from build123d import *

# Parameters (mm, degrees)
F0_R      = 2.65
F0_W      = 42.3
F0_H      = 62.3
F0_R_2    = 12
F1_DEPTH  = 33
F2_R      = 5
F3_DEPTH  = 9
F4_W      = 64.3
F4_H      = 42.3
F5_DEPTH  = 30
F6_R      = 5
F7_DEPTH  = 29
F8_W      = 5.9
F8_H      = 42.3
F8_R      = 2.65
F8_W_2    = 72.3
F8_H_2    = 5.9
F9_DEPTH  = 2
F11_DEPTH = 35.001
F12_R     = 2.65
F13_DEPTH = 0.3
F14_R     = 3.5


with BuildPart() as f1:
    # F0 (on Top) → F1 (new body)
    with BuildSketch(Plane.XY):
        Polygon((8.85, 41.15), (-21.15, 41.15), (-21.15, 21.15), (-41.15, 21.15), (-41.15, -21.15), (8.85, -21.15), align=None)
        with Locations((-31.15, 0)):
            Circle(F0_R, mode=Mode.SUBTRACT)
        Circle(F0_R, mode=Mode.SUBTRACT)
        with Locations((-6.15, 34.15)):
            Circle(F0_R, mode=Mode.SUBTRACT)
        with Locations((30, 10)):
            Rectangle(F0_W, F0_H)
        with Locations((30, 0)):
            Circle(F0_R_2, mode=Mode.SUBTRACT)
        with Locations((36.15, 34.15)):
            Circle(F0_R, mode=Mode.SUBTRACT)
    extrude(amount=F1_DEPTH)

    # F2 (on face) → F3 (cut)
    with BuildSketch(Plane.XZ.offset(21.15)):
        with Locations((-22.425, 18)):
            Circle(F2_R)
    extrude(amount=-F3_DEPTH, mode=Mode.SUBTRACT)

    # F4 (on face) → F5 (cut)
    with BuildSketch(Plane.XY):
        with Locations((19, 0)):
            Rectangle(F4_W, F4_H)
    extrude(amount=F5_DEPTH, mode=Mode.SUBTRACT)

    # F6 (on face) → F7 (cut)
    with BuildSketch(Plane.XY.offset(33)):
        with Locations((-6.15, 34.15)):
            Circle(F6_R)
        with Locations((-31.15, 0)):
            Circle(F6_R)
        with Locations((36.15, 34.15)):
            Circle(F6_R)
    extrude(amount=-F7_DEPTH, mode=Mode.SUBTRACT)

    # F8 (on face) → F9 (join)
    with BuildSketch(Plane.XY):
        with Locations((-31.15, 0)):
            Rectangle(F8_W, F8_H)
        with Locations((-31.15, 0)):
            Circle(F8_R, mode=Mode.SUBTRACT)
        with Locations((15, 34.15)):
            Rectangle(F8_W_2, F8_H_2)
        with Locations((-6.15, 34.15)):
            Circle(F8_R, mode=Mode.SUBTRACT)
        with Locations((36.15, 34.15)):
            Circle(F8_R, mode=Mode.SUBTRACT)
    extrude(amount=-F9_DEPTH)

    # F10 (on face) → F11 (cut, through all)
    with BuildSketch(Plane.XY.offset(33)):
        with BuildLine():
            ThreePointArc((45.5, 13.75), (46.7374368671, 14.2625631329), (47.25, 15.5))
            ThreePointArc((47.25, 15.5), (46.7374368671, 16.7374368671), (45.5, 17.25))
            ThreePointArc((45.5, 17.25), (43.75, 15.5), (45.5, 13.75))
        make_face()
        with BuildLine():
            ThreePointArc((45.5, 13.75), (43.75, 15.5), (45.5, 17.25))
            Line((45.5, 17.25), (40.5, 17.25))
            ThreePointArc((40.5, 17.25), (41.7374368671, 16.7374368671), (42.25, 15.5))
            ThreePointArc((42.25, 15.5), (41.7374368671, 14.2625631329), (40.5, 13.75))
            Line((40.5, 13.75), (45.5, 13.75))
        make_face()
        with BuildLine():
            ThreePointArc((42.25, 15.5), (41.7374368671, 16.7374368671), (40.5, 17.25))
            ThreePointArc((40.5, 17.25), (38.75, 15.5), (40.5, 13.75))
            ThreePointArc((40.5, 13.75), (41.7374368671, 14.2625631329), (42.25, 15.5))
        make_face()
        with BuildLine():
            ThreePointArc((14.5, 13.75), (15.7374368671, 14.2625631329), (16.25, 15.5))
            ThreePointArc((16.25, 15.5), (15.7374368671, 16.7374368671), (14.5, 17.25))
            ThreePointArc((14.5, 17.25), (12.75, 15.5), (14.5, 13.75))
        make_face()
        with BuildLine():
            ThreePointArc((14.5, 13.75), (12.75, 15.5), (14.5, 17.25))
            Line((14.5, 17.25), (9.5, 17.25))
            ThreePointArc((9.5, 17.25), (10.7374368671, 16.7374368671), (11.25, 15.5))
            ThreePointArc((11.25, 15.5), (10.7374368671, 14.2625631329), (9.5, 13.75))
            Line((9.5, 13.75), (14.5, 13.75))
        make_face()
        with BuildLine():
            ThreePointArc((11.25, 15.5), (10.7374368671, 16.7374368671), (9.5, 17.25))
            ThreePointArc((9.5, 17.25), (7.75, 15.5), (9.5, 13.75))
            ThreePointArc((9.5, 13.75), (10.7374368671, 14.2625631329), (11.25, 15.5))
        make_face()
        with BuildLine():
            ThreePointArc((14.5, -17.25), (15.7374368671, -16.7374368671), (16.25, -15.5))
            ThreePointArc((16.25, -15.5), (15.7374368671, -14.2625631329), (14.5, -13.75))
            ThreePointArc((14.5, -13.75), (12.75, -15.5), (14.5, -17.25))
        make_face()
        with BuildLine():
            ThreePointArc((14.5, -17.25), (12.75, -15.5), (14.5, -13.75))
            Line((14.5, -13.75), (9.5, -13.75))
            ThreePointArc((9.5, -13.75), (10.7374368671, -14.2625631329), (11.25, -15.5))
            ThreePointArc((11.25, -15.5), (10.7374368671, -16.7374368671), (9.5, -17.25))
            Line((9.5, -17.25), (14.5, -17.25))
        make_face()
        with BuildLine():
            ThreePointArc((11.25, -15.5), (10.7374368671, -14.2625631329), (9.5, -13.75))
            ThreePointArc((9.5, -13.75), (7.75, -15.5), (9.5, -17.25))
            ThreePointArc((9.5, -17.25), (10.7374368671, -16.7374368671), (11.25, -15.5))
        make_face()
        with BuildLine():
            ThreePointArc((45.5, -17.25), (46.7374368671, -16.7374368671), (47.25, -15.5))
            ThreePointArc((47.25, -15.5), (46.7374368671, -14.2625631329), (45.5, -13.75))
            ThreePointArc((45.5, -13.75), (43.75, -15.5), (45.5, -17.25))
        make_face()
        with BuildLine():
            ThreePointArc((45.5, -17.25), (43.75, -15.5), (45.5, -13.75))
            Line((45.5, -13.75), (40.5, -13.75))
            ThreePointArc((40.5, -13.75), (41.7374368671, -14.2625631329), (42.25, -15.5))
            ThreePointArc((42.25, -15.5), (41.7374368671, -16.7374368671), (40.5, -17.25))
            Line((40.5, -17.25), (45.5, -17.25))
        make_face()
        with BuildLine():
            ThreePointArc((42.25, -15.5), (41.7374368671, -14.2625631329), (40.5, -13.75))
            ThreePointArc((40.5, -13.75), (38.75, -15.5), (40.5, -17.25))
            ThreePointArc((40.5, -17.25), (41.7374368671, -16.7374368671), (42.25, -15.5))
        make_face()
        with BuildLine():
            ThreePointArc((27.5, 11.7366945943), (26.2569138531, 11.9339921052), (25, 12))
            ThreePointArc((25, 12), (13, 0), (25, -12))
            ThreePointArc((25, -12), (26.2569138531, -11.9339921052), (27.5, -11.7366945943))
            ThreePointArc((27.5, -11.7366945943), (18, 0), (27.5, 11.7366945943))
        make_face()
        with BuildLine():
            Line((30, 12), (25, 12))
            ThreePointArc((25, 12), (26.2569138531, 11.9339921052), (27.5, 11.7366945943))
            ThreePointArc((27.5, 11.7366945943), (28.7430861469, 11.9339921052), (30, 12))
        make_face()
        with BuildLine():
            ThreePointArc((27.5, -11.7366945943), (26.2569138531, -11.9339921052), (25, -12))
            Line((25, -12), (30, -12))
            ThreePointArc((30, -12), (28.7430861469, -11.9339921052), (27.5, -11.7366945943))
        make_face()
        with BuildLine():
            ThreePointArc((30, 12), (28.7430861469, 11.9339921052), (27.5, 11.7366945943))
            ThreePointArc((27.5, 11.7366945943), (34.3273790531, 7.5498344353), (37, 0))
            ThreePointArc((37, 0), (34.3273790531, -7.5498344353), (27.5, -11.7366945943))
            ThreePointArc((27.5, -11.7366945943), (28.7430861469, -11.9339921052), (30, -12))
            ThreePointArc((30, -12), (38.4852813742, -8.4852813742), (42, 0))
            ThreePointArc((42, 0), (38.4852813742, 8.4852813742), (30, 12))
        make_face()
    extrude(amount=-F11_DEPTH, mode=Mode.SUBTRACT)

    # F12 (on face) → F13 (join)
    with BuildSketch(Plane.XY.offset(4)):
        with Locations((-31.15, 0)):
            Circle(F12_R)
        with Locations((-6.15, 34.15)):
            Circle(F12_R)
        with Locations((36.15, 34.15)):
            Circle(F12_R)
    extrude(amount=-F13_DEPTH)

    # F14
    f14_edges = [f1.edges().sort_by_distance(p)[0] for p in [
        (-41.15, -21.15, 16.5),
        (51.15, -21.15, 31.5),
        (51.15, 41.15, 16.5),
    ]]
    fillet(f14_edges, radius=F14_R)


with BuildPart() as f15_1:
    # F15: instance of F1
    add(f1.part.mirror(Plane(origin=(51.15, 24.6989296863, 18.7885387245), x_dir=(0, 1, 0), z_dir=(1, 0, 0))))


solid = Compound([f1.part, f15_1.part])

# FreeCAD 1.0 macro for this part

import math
import FreeCAD as App
import Part
import Sketcher
Q = App.Units.Quantity


def edges_at(feature, points):
    """Names of the edges that pass closest to the given points."""
    edges = feature.Shape.Edges
    near = lambda p: min(range(len(edges)), key=lambda i: edges[i].distToShape(Part.Vertex(*p))[0])
    return sorted({f"Edge{near(p) + 1}" for p in points})


def add_polygon(sketch, points):
    """Adds a closed chain of lines whose ends are joined by coincident constraints."""
    first, n = sketch.GeometryCount, len(points)
    for a, b in zip(points, points[1:] + points[:1]):
        sketch.addGeometry(Part.LineSegment(App.Vector(*a, 0), App.Vector(*b, 0)), False)
    for i in range(n):
        sketch.addConstraint(Sketcher.Constraint("Coincident", first + i, 2, first + (i + 1) % n, 1))

doc = App.newDocument("Part")
params = doc.addObject("Spreadsheet::Sheet", "Params")
for row, (alias, value) in enumerate([
    ("sketch1_diameter", "24 mm"),
    ("sketch1_diameter2", "5.3 mm"),
    ("sketch1_width", "20 mm"),
    ("sketch1_width2", "92.3 mm"),
    ("sketch1_height", "42.3 mm"),
    ("pad1_length", "33 mm"),
    ("sketch2_diameter", "10 mm"),
    ("pocket1_length", "9 mm"),
    ("sketch3_width", "64.3 mm"),
    ("sketch3_height", "42.3 mm"),
    ("pocket2_length", "30 mm"),
    ("sketch4_diameter", "10 mm"),
    ("pocket3_length", "29 mm"),
    ("sketch5_diameter", "5.3 mm"),
    ("sketch5_width", "5.9 mm"),
    ("sketch5_width2", "72.3 mm"),
    ("sketch5_height", "42.3 mm"),
    ("pad2_length", "2 mm"),
    ("sketch6_radius", "12 mm"),
    ("sketch6_width", "5 mm"),
    ("sketch6_radius2", "1.75 mm"),
    ("sketch7_diameter", "5.3 mm"),
    ("pad3_length", "0.3 mm"),
    ("fillet_radius", "3.5 mm"),
], start=1):
    params.set(f"A{row}", alias)
    params.set(f"B{row}", "=" + value)
    params.setAlias(f"B{row}", alias)

body = doc.addObject("PartDesign::Body", "Body")

# Sketch on XY plane
sketch1 = doc.addObject("Sketcher::SketchObject", "Sketch")
body.addObject(sketch1)
sketch1.AttachmentSupport = (doc.XY_Plane, [""])
sketch1.MapMode = "FlatFace"
add_polygon(sketch1, [(-21.1, 41.1), (-21.1, 21.1), (-41.1, 21.1), (-41.1, -21.1), (51.1, -21.1), (51.1, 41.1)])  # lines 0-5
sketch1.addGeometry(Part.Circle(App.Vector(-31.1, 0, 0), App.Vector(0, 0, 1), 2.6), False)  # 6
sketch1.addGeometry(Part.Circle(App.Vector(0, 0, 0), App.Vector(0, 0, 1), 2.6), False)  # 7
sketch1.addGeometry(Part.Circle(App.Vector(30, 0, 0), App.Vector(0, 0, 1), 12), False)  # 8
sketch1.addGeometry(Part.Circle(App.Vector(-6.2, 34.1, 0), App.Vector(0, 0, 1), 2.6), False)  # 9
sketch1.addGeometry(Part.Circle(App.Vector(36.1, 34.1, 0), App.Vector(0, 0, 1), 2.6), False)  # 10
sketch1.addConstraint([
    Sketcher.Constraint("Vertical", 0),
    Sketcher.Constraint("Horizontal", 1),
    Sketcher.Constraint("Vertical", 2),
    Sketcher.Constraint("Horizontal", 3),
    Sketcher.Constraint("Vertical", 4),
    Sketcher.Constraint("Horizontal", 5),
    Sketcher.Constraint("Coincident", 7, 3, -1, 1),
    Sketcher.Constraint("Equal", 6, 7),
    Sketcher.Constraint("Equal", 7, 9),
    Sketcher.Constraint("Equal", 9, 10),
    Sketcher.Constraint("PointOnObject", 6, 3, -1),
    Sketcher.Constraint("PointOnObject", 8, 3, -1),
    Sketcher.Constraint("Horizontal", 9, 3, 10, 3),
    Sketcher.Constraint("Equal", 1, 0),
    Sketcher.Constraint("Diameter", 8, Q("24 mm")),
    Sketcher.Constraint("Diameter", 6, Q("5.3 mm")),
    Sketcher.Constraint("DistanceX", 1, 2, 1, 1, Q("20 mm")),
    Sketcher.Constraint("DistanceX", 3, 1, 3, 2, Q("92.3 mm")),
    Sketcher.Constraint("DistanceY", 2, 2, 2, 1, Q("42.3 mm")),
    Sketcher.Constraint("DistanceX", -1, 1, 8, 3, Q("30 mm")),
    Sketcher.Constraint("DistanceX", 6, 3, 9, 3, Q("25 mm")),
    Sketcher.Constraint("DistanceX", 0, 2, 9, 3, Q("15 mm")),
    Sketcher.Constraint("DistanceY", 0, 2, 9, 3, Q("13 mm")),
    Sketcher.Constraint("DistanceX", 10, 3, 3, 2, Q("15 mm")),
    Sketcher.Constraint("DistanceX", 6, 3, -1, 1, Q("31.15 mm")),
    Sketcher.Constraint("DistanceY", -1, 1, 9, 3, Q("34.15 mm")),
])
sketch1.setExpression("Constraints[20]", "Params.sketch1_diameter")
sketch1.setExpression("Constraints[21]", "Params.sketch1_diameter2")
sketch1.setExpression("Constraints[22]", "Params.sketch1_width")
sketch1.setExpression("Constraints[23]", "Params.sketch1_width2")
sketch1.setExpression("Constraints[24]", "Params.sketch1_height")
pad1 = doc.addObject("PartDesign::Pad", "Pad")
body.addObject(pad1)
pad1.Profile = sketch1
pad1.setExpression("Length", "Params.pad1_length")

# Sketch on XZ plane
sketch2 = doc.addObject("Sketcher::SketchObject", "Sketch001")
body.addObject(sketch2)
sketch2.AttachmentSupport = (doc.XZ_Plane, [""])
sketch2.MapMode = "FlatFace"
sketch2.AttachmentOffset = App.Placement(App.Vector(0, 0, 21.15), App.Rotation())
sketch2.addGeometry(Part.Circle(App.Vector(-22, 18, 0), App.Vector(0, 0, 1), 5), False)
sketch2.addConstraint([
    Sketcher.Constraint("Diameter", 0, Q("10 mm")),
    Sketcher.Constraint("DistanceY", -1, 1, 0, 3, Q("18 mm")),
    Sketcher.Constraint("DistanceX", 0, 3, -1, 1, Q("22.425 mm")),
])
sketch2.setExpression("Constraints[0]", "Params.sketch2_diameter")
pocket1 = doc.addObject("PartDesign::Pocket", "Pocket")
body.addObject(pocket1)
pocket1.Profile = sketch2
pocket1.setExpression("Length", "Params.pocket1_length")

# Sketch on XY plane
sketch3 = doc.addObject("Sketcher::SketchObject", "Sketch002")
body.addObject(sketch3)
sketch3.AttachmentSupport = (doc.XY_Plane, [""])
sketch3.MapMode = "FlatFace"
add_polygon(sketch3, [(-13, 21), (-13, -21), (51, -21), (51, 21)])  # lines 0-3
sketch3.addConstraint([
    Sketcher.Constraint("Vertical", 0),
    Sketcher.Constraint("Horizontal", 1),
    Sketcher.Constraint("Vertical", 2),
    Sketcher.Constraint("Horizontal", 3),
    Sketcher.Constraint("DistanceX", 1, 1, 1, 2, Q("64.3 mm")),
    Sketcher.Constraint("DistanceY", 0, 2, 0, 1, Q("42.3 mm")),
    Sketcher.Constraint("DistanceX", 0, 2, -1, 1, Q("13.15 mm")),
    Sketcher.Constraint("DistanceY", 0, 2, -1, 1, Q("21.15 mm")),
])
sketch3.setExpression("Constraints[8]", "Params.sketch3_width")
sketch3.setExpression("Constraints[9]", "Params.sketch3_height")
pocket2 = doc.addObject("PartDesign::Pocket", "Pocket001")
body.addObject(pocket2)
pocket2.Profile = sketch3
pocket2.setExpression("Length", "Params.pocket2_length")
pocket2.Reversed = True

# Sketch on XY plane
sketch4 = doc.addObject("Sketcher::SketchObject", "Sketch003")
body.addObject(sketch4)
sketch4.AttachmentSupport = (doc.XY_Plane, [""])
sketch4.MapMode = "FlatFace"
sketch4.AttachmentOffset = App.Placement(App.Vector(0, 0, 33), App.Rotation())
sketch4.addGeometry([
    Part.Circle(App.Vector(-6, 34, 0), App.Vector(0, 0, 1), 5),
    Part.Circle(App.Vector(-31, 0, 0), App.Vector(0, 0, 1), 5),
    Part.Circle(App.Vector(36, 34, 0), App.Vector(0, 0, 1), 5),
], False)
sketch4.addConstraint([
    Sketcher.Constraint("Equal", 0, 1),
    Sketcher.Constraint("Equal", 1, 2),
    Sketcher.Constraint("PointOnObject", 1, 3, -1),
    Sketcher.Constraint("Horizontal", 0, 3, 2, 3),
    Sketcher.Constraint("Diameter", 0, Q("10 mm")),
    Sketcher.Constraint("DistanceX", 1, 3, 0, 3, Q("25 mm")),
    Sketcher.Constraint("DistanceX", 0, 3, 2, 3, Q("42.3 mm")),
    Sketcher.Constraint("DistanceX", 0, 3, -1, 1, Q("6.15 mm")),
    Sketcher.Constraint("DistanceY", -1, 1, 0, 3, Q("34.15 mm")),
])
sketch4.setExpression("Constraints[4]", "Params.sketch4_diameter")
pocket3 = doc.addObject("PartDesign::Pocket", "Pocket002")
body.addObject(pocket3)
pocket3.Profile = sketch4
pocket3.setExpression("Length", "Params.pocket3_length")

# Sketch on XY plane
sketch5 = doc.addObject("Sketcher::SketchObject", "Sketch004")
body.addObject(sketch5)
sketch5.AttachmentSupport = (doc.XY_Plane, [""])
sketch5.MapMode = "FlatFace"
add_polygon(sketch5, [(-34.1, 21.1), (-34.1, -21.1), (-28.2, -21.1), (-28.2, 21.1)])  # lines 0-3
sketch5.addGeometry(Part.Circle(App.Vector(-31.1, 0, 0), App.Vector(0, 0, 1), 2.6), False)  # 4
add_polygon(sketch5, [(-21.1, 37.1), (-21.1, 31.2), (51.1, 31.2), (51.1, 37.1)])  # lines 5-8
sketch5.addGeometry(Part.Circle(App.Vector(-6.2, 34.1, 0), App.Vector(0, 0, 1), 2.6), False)  # 9
sketch5.addGeometry(Part.Circle(App.Vector(36.1, 34.1, 0), App.Vector(0, 0, 1), 2.6), False)  # 10
sketch5.addConstraint([
    Sketcher.Constraint("Vertical", 0),
    Sketcher.Constraint("Horizontal", 1),
    Sketcher.Constraint("Vertical", 2),
    Sketcher.Constraint("Horizontal", 3),
    Sketcher.Constraint("Vertical", 5),
    Sketcher.Constraint("Horizontal", 6),
    Sketcher.Constraint("Vertical", 7),
    Sketcher.Constraint("Horizontal", 8),
    Sketcher.Constraint("Equal", 4, 9),
    Sketcher.Constraint("Equal", 9, 10),
    Sketcher.Constraint("PointOnObject", 4, 3, -1),
    Sketcher.Constraint("Horizontal", 9, 3, 10, 3),
    Sketcher.Constraint("Equal", 3, 5),
    Sketcher.Constraint("Diameter", 4, Q("5.3 mm")),
    Sketcher.Constraint("DistanceX", 1, 1, 1, 2, Q("5.9 mm")),
    Sketcher.Constraint("DistanceX", 6, 1, 6, 2, Q("72.3 mm")),
    Sketcher.Constraint("DistanceY", 0, 2, 0, 1, Q("42.3 mm")),
    Sketcher.Constraint("DistanceX", 4, 3, 9, 3, Q("25 mm")),
    Sketcher.Constraint("DistanceY", 2, 2, 9, 3, Q("13 mm")),
    Sketcher.Constraint("DistanceX", 5, 2, 9, 3, Q("15 mm")),
    Sketcher.Constraint("DistanceX", 10, 3, 6, 2, Q("15 mm")),
    Sketcher.Constraint("DistanceX", 0, 2, -1, 1, Q("34.1 mm")),
    Sketcher.Constraint("DistanceY", -1, 1, 5, 2, Q("31.2 mm")),
    Sketcher.Constraint("DistanceX", 4, 3, -1, 1, Q("31.15 mm")),
    Sketcher.Constraint("DistanceY", -1, 1, 9, 3, Q("34.15 mm")),
])
sketch5.setExpression("Constraints[21]", "Params.sketch5_diameter")
sketch5.setExpression("Constraints[22]", "Params.sketch5_width")
sketch5.setExpression("Constraints[23]", "Params.sketch5_width2")
sketch5.setExpression("Constraints[24]", "Params.sketch5_height")
pad2 = doc.addObject("PartDesign::Pad", "Pad001")
body.addObject(pad2)
pad2.Profile = sketch5
pad2.setExpression("Length", "Params.pad2_length")
pad2.Reversed = True

# Sketch on XY plane
sketch6 = doc.addObject("Sketcher::SketchObject", "Sketch005")
body.addObject(sketch6)
sketch6.AttachmentSupport = (doc.XY_Plane, [""])
sketch6.MapMode = "FlatFace"
sketch6.AttachmentOffset = App.Placement(App.Vector(0, 0, 33), App.Rotation())
sketch6.addGeometry([
    Part.ArcOfCircle(Part.Circle(App.Vector(45.5, 15.5, 0), App.Vector(0, 0, 1), 1.8), math.radians(-90), math.radians(0)),  # 0
    Part.ArcOfCircle(Part.Circle(App.Vector(45.5, 15.5, 0), App.Vector(0, 0, 1), 1.8), math.radians(0), math.radians(90)),  # 1
    Part.LineSegment(App.Vector(45.5, 17.2, 0), App.Vector(40.5, 17.2, 0)),  # 2
    Part.ArcOfCircle(Part.Circle(App.Vector(40.5, 15.5, 0), App.Vector(0, 0, 1), 1.8), math.radians(90), math.radians(270)),  # 3
    Part.LineSegment(App.Vector(40.5, 13.8, 0), App.Vector(45.5, 13.8, 0)),  # 4
    Part.ArcOfCircle(Part.Circle(App.Vector(14.5, 15.5, 0), App.Vector(0, 0, 1), 1.8), math.radians(-90), math.radians(0)),  # 5
    Part.ArcOfCircle(Part.Circle(App.Vector(14.5, 15.5, 0), App.Vector(0, 0, 1), 1.8), math.radians(0), math.radians(90)),  # 6
    Part.LineSegment(App.Vector(14.5, 17.2, 0), App.Vector(9.5, 17.2, 0)),  # 7
    Part.ArcOfCircle(Part.Circle(App.Vector(9.5, 15.5, 0), App.Vector(0, 0, 1), 1.8), math.radians(90), math.radians(270)),  # 8
    Part.LineSegment(App.Vector(9.5, 13.8, 0), App.Vector(14.5, 13.8, 0)),  # 9
    Part.ArcOfCircle(Part.Circle(App.Vector(14.5, -15.5, 0), App.Vector(0, 0, 1), 1.8), math.radians(-90), math.radians(0)),  # 10
    Part.ArcOfCircle(Part.Circle(App.Vector(14.5, -15.5, 0), App.Vector(0, 0, 1), 1.8), math.radians(0), math.radians(90)),  # 11
    Part.LineSegment(App.Vector(14.5, -13.8, 0), App.Vector(9.5, -13.8, 0)),  # 12
    Part.ArcOfCircle(Part.Circle(App.Vector(9.5, -15.5, 0), App.Vector(0, 0, 1), 1.8), math.radians(90), math.radians(270)),  # 13
    Part.LineSegment(App.Vector(9.5, -17.2, 0), App.Vector(14.5, -17.2, 0)),  # 14
    Part.ArcOfCircle(Part.Circle(App.Vector(45.5, -15.5, 0), App.Vector(0, 0, 1), 1.8), math.radians(-90), math.radians(0)),  # 15
    Part.ArcOfCircle(Part.Circle(App.Vector(45.5, -15.5, 0), App.Vector(0, 0, 1), 1.8), math.radians(0), math.radians(90)),  # 16
    Part.LineSegment(App.Vector(45.5, -13.8, 0), App.Vector(40.5, -13.8, 0)),  # 17
    Part.ArcOfCircle(Part.Circle(App.Vector(40.5, -15.5, 0), App.Vector(0, 0, 1), 1.8), math.radians(90), math.radians(270)),  # 18
    Part.LineSegment(App.Vector(40.5, -17.2, 0), App.Vector(45.5, -17.2, 0)),  # 19
    Part.ArcOfCircle(Part.Circle(App.Vector(25, 0, 0), App.Vector(0, 0, 1), 12), math.radians(90), math.radians(270)),  # 20
    Part.LineSegment(App.Vector(25, -12, 0), App.Vector(30, -12, 0)),  # 21
    Part.ArcOfCircle(Part.Circle(App.Vector(30, 0, 0), App.Vector(0, 0, 1), 12), math.radians(-90), math.radians(0)),  # 22
    Part.ArcOfCircle(Part.Circle(App.Vector(30, 0, 0), App.Vector(0, 0, 1), 12), math.radians(0), math.radians(90)),  # 23
    Part.LineSegment(App.Vector(30, 12, 0), App.Vector(25, 12, 0)),  # 24
    Part.ArcOfCircle(Part.Circle(App.Vector(30, 0, 0), App.Vector(0, 0, 1), 12), math.radians(102), math.radians(258)),  # 25
    Part.ArcOfCircle(Part.Circle(App.Vector(25, 0, 0), App.Vector(0, 0, 1), 12), math.radians(0), math.radians(78)),  # 26
    Part.ArcOfCircle(Part.Circle(App.Vector(25, 0, 0), App.Vector(0, 0, 1), 12), math.radians(-78), math.radians(0)),  # 27
], False)
sketch6.addConstraint([
    Sketcher.Constraint("Tangent", 0, 2, 1, 1),
    Sketcher.Constraint("Tangent", 1, 2, 2, 1),
    Sketcher.Constraint("Tangent", 2, 2, 3, 1),
    Sketcher.Constraint("Tangent", 3, 2, 4, 1),
    Sketcher.Constraint("Tangent", 4, 2, 0, 1),
    Sketcher.Constraint("Tangent", 5, 2, 6, 1),
    Sketcher.Constraint("Tangent", 6, 2, 7, 1),
    Sketcher.Constraint("Tangent", 7, 2, 8, 1),
    Sketcher.Constraint("Tangent", 8, 2, 9, 1),
    Sketcher.Constraint("Tangent", 9, 2, 5, 1),
    Sketcher.Constraint("Tangent", 10, 2, 11, 1),
    Sketcher.Constraint("Tangent", 11, 2, 12, 1),
    Sketcher.Constraint("Tangent", 12, 2, 13, 1),
    Sketcher.Constraint("Tangent", 13, 2, 14, 1),
    Sketcher.Constraint("Tangent", 14, 2, 10, 1),
    Sketcher.Constraint("Tangent", 15, 2, 16, 1),
    Sketcher.Constraint("Tangent", 16, 2, 17, 1),
    Sketcher.Constraint("Tangent", 17, 2, 18, 1),
    Sketcher.Constraint("Tangent", 18, 2, 19, 1),
    Sketcher.Constraint("Tangent", 19, 2, 15, 1),
    Sketcher.Constraint("Tangent", 20, 2, 21, 1),
    Sketcher.Constraint("Tangent", 21, 2, 22, 1),
    Sketcher.Constraint("Tangent", 22, 2, 23, 1),
    Sketcher.Constraint("Tangent", 23, 2, 24, 1),
    Sketcher.Constraint("Tangent", 24, 2, 20, 1),
    Sketcher.Constraint("Coincident", 25, 1, 26, 2),
    Sketcher.Constraint("Tangent", 26, 1, 27, 2),
    Sketcher.Constraint("Coincident", 27, 1, 25, 2),
    Sketcher.Constraint("Horizontal", 2),
    Sketcher.Constraint("Horizontal", 4),
    Sketcher.Constraint("Horizontal", 7),
    Sketcher.Constraint("Horizontal", 9),
    Sketcher.Constraint("Horizontal", 12),
    Sketcher.Constraint("Horizontal", 14),
    Sketcher.Constraint("Horizontal", 17),
    Sketcher.Constraint("Horizontal", 19),
    Sketcher.Constraint("Horizontal", 21),
    Sketcher.Constraint("Horizontal", 24),
    Sketcher.Constraint("Coincident", 25, 3, 22, 3),
    Sketcher.Constraint("Coincident", 26, 3, 20, 3),
    Sketcher.Constraint("Equal", 0, 1),
    Sketcher.Constraint("Equal", 3, 5),
    Sketcher.Constraint("Equal", 5, 6),
    Sketcher.Constraint("Equal", 8, 10),
    Sketcher.Constraint("Equal", 10, 11),
    Sketcher.Constraint("Equal", 13, 15),
    Sketcher.Constraint("Equal", 15, 16),
    Sketcher.Constraint("Equal", 20, 22),
    Sketcher.Constraint("Equal", 23, 25),
    Sketcher.Constraint("Equal", 25, 26),
    Sketcher.Constraint("Equal", 26, 27),
    Sketcher.Constraint("Symmetric", 5, 3, 10, 3, -1),
    Sketcher.Constraint("Symmetric", 0, 3, 15, 3, -1),
    Sketcher.Constraint("PointOnObject", 20, 3, -1),
    Sketcher.Constraint("PointOnObject", 22, 2, -1),
    Sketcher.Constraint("PointOnObject", 26, 1, -1),
    Sketcher.Constraint("Horizontal", 3, 3, 5, 3),
    Sketcher.Constraint("Horizontal", 8, 3, 0, 2),
    Sketcher.Constraint("Horizontal", 0, 2, 5, 2),
    Sketcher.Constraint("Horizontal", 18, 3, 10, 2),
    Sketcher.Constraint("Horizontal", 10, 2, 15, 2),
    Sketcher.Constraint("Vertical", 8, 3, 13, 3),
    Sketcher.Constraint("Vertical", 3, 3, 18, 3),
    Sketcher.Constraint("Equal", 4, 7),
    Sketcher.Constraint("Equal", 19, 21),
    Sketcher.Constraint("Radius", 20, Q("12 mm")),
    Sketcher.Constraint("DistanceX", 2, 2, 2, 1, Q("5 mm")),
    Sketcher.Constraint("Radius", 0, Q("1.75 mm")),
    Sketcher.Constraint("DistanceX", -1, 1, 20, 3, Q("25 mm")),
    Sketcher.Constraint("DistanceX", 5, 3, 3, 3, Q("26 mm")),
    Sketcher.Constraint("DistanceY", 10, 3, 5, 3, Q("31 mm")),
    Sketcher.Constraint("DistanceX", -1, 1, 0, 3, Q("45.5 mm")),
])
sketch6.setExpression("Constraints[65]", "Params.sketch6_radius")
sketch6.setExpression("Constraints[66]", "Params.sketch6_width")
sketch6.setExpression("Constraints[67]", "Params.sketch6_radius2")
pocket4 = doc.addObject("PartDesign::Pocket", "Pocket003")
body.addObject(pocket4)
pocket4.Profile = sketch6
pocket4.Type = "ThroughAll"

# Sketch on XY plane
sketch7 = doc.addObject("Sketcher::SketchObject", "Sketch006")
body.addObject(sketch7)
sketch7.AttachmentSupport = (doc.XY_Plane, [""])
sketch7.MapMode = "FlatFace"
sketch7.AttachmentOffset = App.Placement(App.Vector(0, 0, 4), App.Rotation())
sketch7.addGeometry([
    Part.Circle(App.Vector(-31.1, 0, 0), App.Vector(0, 0, 1), 2.6),
    Part.Circle(App.Vector(-6.2, 34.1, 0), App.Vector(0, 0, 1), 2.6),
    Part.Circle(App.Vector(36.1, 34.1, 0), App.Vector(0, 0, 1), 2.6),
], False)
sketch7.addConstraint([
    Sketcher.Constraint("Equal", 0, 1),
    Sketcher.Constraint("Equal", 1, 2),
    Sketcher.Constraint("PointOnObject", 0, 3, -1),
    Sketcher.Constraint("Horizontal", 1, 3, 2, 3),
    Sketcher.Constraint("Diameter", 0, Q("5.3 mm")),
    Sketcher.Constraint("DistanceX", 0, 3, 1, 3, Q("25 mm")),
    Sketcher.Constraint("DistanceX", 1, 3, 2, 3, Q("42.3 mm")),
    Sketcher.Constraint("DistanceX", 0, 3, -1, 1, Q("31.15 mm")),
    Sketcher.Constraint("DistanceY", -1, 1, 1, 3, Q("34.15 mm")),
])
sketch7.setExpression("Constraints[4]", "Params.sketch7_diameter")
pad3 = doc.addObject("PartDesign::Pad", "Pad002")
body.addObject(pad3)
pad3.Profile = sketch7
pad3.setExpression("Length", "Params.pad3_length")
pad3.Reversed = True
doc.recompute()

fillet = doc.addObject("PartDesign::Fillet", "Fillet")
body.addObject(fillet)
fillet.Base = (pad3, edges_at(pad3, [(-41.15, -21.15, 16.5), (51.15, -21.15, 31.5), (51.15, 41.15, 16.5)]))
fillet.setExpression("Radius", "Params.fillet_radius")
body2 = doc.addObject("PartDesign::Body", "Body001")
doc.recompute()

mirroring = doc.addObject("Part::Mirroring", "Mirroring")
mirroring.Source = body
mirroring.Base = App.Vector(51.15, 24.69893, 18.788539)
mirroring.Normal = App.Vector(1, 0, 0)
body2.BaseFeature = mirroring
doc.recompute()
mirroring.Visibility = False

doc.recompute()
